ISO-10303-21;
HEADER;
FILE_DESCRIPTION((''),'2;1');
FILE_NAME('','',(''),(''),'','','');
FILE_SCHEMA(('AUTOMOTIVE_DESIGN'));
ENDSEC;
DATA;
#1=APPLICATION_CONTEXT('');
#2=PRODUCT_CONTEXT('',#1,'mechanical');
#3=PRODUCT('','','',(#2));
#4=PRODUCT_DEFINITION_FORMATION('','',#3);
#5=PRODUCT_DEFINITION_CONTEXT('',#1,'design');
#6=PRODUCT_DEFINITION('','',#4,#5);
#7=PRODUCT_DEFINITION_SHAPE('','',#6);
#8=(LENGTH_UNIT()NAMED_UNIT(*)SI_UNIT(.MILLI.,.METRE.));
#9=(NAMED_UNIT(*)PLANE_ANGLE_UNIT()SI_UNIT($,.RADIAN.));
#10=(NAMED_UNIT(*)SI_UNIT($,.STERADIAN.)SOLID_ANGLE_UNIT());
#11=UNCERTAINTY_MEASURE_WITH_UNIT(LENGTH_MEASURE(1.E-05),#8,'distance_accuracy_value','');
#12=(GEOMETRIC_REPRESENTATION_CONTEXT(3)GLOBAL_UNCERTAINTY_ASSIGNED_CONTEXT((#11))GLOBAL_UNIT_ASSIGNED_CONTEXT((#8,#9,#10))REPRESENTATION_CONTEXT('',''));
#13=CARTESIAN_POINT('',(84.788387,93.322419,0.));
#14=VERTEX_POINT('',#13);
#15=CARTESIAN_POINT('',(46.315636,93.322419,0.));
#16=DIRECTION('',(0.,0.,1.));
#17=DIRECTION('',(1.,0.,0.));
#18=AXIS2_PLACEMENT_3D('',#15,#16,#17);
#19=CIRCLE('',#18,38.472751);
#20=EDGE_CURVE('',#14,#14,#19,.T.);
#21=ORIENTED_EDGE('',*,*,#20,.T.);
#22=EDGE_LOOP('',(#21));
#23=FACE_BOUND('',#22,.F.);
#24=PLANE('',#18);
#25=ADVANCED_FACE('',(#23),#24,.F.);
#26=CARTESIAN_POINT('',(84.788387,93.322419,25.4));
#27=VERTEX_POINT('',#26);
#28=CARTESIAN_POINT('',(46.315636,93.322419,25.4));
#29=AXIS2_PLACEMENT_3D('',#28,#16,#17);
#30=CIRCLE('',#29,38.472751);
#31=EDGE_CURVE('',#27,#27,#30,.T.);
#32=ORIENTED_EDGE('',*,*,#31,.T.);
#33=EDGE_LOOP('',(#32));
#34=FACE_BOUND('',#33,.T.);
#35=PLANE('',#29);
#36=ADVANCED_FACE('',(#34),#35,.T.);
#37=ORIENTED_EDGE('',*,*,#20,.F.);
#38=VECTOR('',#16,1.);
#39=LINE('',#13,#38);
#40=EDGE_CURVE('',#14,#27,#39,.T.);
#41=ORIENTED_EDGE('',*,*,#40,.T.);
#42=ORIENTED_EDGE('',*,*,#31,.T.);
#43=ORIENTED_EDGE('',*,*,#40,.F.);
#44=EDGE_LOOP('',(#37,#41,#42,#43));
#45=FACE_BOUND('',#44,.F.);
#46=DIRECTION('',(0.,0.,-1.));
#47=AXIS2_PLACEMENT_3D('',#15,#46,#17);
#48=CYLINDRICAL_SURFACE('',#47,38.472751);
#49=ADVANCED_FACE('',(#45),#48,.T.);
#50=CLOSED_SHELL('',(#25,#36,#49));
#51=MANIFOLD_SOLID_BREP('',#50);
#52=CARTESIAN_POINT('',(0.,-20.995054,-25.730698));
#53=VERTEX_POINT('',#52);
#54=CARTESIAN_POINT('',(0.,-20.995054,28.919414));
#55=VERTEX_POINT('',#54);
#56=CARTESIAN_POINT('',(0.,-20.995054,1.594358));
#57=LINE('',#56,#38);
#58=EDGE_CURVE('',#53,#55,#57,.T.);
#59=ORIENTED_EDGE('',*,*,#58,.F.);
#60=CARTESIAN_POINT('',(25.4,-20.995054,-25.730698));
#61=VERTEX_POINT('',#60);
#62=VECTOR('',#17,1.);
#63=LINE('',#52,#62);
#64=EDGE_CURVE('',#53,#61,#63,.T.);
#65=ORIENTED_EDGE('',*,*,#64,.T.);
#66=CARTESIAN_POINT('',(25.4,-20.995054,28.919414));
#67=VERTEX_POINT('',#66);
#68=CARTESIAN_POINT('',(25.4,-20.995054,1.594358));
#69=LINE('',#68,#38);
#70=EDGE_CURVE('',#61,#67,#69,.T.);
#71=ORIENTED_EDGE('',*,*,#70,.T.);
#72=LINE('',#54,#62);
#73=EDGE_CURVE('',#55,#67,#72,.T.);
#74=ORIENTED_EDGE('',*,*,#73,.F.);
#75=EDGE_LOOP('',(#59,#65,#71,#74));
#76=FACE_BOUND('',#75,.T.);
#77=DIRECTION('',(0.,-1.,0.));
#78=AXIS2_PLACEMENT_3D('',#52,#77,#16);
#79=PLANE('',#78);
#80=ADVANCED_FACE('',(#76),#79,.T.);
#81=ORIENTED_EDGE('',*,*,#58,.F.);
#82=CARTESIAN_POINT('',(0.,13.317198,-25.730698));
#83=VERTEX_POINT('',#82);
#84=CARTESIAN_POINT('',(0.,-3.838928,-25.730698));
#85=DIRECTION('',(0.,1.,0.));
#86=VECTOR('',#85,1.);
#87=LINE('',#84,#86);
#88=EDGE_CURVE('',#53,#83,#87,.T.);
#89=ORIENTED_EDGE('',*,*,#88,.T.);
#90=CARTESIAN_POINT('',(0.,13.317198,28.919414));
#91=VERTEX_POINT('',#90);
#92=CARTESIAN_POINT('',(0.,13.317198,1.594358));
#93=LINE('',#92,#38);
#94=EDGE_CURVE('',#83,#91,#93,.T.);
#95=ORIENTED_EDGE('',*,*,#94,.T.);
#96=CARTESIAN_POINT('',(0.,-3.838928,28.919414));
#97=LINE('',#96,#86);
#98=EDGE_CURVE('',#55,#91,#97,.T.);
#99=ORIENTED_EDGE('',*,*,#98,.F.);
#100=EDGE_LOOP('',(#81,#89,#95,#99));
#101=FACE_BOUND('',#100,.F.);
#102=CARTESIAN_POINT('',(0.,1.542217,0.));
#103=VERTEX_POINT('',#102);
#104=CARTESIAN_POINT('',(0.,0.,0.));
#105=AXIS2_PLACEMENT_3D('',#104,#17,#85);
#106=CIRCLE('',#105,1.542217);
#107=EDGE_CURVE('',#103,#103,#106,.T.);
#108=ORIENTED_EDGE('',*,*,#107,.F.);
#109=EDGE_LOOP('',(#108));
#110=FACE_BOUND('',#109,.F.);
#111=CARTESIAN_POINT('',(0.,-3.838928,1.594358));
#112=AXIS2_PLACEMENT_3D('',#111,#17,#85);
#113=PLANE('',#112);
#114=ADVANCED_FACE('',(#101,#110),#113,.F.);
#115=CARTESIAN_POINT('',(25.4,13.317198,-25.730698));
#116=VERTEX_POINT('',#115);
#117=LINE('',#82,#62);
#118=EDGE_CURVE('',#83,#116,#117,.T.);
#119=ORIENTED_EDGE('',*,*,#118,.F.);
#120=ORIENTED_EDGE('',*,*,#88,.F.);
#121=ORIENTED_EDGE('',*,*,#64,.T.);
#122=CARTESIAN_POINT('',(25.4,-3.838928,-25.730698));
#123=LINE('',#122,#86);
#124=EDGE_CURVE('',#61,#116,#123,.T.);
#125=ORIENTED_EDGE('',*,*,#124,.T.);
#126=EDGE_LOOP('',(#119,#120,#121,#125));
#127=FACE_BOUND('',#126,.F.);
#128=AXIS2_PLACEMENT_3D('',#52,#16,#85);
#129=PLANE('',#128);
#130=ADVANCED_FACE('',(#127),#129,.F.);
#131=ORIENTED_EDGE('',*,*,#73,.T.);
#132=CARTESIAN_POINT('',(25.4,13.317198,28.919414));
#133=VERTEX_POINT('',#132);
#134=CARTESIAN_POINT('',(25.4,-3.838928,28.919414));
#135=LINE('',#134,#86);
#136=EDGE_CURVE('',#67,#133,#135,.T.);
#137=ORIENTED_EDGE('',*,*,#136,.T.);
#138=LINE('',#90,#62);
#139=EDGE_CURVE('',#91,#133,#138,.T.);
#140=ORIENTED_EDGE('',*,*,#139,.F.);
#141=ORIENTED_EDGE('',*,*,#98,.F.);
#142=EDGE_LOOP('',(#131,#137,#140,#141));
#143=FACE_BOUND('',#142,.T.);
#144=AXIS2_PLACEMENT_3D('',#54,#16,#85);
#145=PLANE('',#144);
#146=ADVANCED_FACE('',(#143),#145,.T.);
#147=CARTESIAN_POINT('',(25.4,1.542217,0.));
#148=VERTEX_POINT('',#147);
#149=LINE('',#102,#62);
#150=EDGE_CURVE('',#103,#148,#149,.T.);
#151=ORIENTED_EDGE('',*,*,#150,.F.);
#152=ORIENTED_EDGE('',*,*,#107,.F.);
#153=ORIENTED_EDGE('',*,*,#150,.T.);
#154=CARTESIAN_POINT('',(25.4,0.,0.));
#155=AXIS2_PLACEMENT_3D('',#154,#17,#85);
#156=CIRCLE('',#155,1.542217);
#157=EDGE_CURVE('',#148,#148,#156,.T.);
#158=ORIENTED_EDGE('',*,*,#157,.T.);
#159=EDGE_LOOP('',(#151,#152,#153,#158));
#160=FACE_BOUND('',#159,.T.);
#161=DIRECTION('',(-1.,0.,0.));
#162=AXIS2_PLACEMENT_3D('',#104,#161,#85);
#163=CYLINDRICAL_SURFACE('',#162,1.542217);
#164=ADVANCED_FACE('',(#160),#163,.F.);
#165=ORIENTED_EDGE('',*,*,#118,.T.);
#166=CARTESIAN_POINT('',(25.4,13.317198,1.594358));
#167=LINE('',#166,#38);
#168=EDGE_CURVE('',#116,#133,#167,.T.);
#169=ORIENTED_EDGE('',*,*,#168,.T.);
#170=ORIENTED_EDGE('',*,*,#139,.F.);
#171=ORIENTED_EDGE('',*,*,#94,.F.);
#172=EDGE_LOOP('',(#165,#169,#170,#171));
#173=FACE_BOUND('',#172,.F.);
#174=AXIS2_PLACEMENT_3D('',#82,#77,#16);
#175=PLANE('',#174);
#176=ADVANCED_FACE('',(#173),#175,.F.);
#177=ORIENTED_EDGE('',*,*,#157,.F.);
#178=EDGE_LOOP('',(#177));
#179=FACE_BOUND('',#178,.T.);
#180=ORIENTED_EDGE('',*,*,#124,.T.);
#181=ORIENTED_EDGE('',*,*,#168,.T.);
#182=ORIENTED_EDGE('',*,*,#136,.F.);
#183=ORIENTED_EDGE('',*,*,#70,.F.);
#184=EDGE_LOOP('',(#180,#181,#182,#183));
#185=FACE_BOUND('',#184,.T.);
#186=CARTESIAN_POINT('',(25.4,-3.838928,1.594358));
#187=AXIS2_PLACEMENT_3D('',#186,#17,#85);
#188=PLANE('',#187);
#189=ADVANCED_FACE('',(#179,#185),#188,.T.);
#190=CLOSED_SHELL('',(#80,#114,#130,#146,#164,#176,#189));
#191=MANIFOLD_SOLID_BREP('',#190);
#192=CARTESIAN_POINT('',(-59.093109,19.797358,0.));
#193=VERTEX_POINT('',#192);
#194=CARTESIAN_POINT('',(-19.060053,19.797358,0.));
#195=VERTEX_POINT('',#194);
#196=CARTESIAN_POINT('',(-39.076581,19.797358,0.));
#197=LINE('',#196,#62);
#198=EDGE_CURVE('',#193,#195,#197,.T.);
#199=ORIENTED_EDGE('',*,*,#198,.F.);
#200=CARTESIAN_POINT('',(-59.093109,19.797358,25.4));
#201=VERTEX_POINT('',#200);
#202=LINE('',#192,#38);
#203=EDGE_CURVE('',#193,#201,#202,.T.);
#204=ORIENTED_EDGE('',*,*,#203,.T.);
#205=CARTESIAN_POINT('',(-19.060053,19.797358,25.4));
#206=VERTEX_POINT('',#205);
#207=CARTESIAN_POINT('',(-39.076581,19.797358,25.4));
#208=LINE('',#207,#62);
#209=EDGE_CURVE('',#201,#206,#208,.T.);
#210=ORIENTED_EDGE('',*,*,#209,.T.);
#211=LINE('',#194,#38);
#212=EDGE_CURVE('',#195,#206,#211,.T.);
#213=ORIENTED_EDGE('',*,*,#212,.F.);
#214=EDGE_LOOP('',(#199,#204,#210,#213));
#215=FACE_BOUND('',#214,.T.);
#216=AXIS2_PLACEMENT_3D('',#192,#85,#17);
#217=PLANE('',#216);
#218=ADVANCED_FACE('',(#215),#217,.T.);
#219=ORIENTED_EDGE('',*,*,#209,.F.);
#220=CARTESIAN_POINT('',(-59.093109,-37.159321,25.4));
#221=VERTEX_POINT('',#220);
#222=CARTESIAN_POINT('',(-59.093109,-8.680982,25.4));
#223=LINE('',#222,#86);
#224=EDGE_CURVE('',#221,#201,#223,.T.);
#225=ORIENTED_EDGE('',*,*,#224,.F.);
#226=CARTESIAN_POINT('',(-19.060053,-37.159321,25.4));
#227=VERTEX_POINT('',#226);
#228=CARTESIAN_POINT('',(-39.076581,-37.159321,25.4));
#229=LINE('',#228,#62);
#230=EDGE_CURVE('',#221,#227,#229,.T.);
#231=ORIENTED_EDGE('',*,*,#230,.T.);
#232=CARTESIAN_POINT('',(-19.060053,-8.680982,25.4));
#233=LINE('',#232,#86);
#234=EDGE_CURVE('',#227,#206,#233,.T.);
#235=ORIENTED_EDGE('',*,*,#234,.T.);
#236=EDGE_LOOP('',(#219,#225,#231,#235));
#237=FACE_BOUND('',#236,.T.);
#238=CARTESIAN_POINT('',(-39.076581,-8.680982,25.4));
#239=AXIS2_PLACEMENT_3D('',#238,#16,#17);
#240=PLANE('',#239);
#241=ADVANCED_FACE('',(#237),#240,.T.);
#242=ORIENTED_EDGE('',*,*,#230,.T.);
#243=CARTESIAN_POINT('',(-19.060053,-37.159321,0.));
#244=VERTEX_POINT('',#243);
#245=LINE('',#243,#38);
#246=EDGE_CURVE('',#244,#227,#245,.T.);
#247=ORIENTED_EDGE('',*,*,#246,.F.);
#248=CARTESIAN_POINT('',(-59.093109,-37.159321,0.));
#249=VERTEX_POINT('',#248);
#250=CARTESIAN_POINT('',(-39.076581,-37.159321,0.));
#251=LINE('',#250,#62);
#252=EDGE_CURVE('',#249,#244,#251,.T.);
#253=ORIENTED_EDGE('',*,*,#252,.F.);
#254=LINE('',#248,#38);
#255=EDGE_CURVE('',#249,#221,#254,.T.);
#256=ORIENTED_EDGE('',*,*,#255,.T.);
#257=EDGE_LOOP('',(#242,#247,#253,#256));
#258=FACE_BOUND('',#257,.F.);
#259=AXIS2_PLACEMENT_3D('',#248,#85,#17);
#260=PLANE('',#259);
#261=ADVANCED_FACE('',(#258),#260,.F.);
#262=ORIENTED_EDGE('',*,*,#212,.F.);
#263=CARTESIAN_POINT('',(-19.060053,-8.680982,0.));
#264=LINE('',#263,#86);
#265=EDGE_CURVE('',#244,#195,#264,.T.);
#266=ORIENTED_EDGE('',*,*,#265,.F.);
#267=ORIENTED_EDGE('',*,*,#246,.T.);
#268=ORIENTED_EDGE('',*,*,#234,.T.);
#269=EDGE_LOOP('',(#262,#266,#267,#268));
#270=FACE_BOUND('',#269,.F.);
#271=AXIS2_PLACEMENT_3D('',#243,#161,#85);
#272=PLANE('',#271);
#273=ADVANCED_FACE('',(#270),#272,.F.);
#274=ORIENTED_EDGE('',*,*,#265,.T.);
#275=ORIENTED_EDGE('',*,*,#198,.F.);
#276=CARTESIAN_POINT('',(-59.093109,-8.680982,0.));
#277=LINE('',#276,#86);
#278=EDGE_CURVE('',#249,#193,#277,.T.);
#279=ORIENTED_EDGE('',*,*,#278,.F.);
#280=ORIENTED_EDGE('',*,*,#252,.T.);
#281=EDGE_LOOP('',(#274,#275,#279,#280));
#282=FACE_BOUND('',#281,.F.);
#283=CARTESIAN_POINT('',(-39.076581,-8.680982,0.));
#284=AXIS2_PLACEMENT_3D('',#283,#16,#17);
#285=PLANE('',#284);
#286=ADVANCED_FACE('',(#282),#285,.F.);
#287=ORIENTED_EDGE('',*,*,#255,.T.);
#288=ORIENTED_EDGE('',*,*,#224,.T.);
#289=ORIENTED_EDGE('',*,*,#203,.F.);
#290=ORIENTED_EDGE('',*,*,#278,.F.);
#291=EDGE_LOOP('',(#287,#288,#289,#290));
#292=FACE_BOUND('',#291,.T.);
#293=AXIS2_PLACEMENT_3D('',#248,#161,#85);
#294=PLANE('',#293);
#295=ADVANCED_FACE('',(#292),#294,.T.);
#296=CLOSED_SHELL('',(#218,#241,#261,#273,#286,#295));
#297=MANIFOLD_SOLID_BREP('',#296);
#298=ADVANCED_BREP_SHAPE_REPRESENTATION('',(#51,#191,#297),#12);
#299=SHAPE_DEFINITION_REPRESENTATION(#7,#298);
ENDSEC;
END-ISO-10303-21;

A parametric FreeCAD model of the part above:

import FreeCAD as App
import Part
import Sketcher

V = App.Vector
Q = App.Units.Quantity

doc = App.newDocument("Part")
params = doc.addObject("Spreadsheet::Sheet", "Params")
for row, (alias, value) in enumerate([
    ("pad1_length", "1 in"),
    ("pad2_length", "1 in"),
    ("pad3_length", "1 in"),
], start=1):
    params.set(f"A{row}", alias)
    params.set(f"B{row}", "=" + value)
    params.setAlias(f"B{row}", alias)

body = doc.addObject("PartDesign::Body", "Body")

sketch1 = body.newObject("Sketcher::SketchObject", "Sketch")
sketch1.AttachmentSupport = (doc.getObject("YZ_Plane"), [""])
sketch1.MapMode = "FlatFace"
sketch1.addGeometry(Part.LineSegment(V(-21, 28.9, 0), V(-21, -25.7, 0)), False)
sketch1.addGeometry(Part.LineSegment(V(-21, -25.7, 0), V(13.3, -25.7, 0)), False)
sketch1.addGeometry(Part.LineSegment(V(13.3, -25.7, 0), V(13.3, 28.9, 0)), False)
sketch1.addGeometry(Part.LineSegment(V(13.3, 28.9, 0), V(-21, 28.9, 0)), False)
sketch1.addGeometry(Part.Circle(V(0, 0, 0), V(0, 0, 1), 1.5), False)
sketch1.addConstraint(Sketcher.Constraint("Coincident", 0, 2, 1, 1))
sketch1.addConstraint(Sketcher.Constraint("Coincident", 1, 2, 2, 1))
sketch1.addConstraint(Sketcher.Constraint("Coincident", 2, 2, 3, 1))
sketch1.addConstraint(Sketcher.Constraint("Coincident", 3, 2, 0, 1))
sketch1.addConstraint(Sketcher.Constraint("Vertical", 0))
sketch1.addConstraint(Sketcher.Constraint("Horizontal", 1))
sketch1.addConstraint(Sketcher.Constraint("Vertical", 2))
sketch1.addConstraint(Sketcher.Constraint("Horizontal", 3))
sketch1.addConstraint(Sketcher.Constraint("Coincident", 4, 3, -1, 1))
sketch1.addConstraint(Sketcher.Constraint("Diameter", 4, Q("3.084434 mm")))
sketch1.addConstraint(Sketcher.Constraint("DistanceY", 0, 2, -1, 1, Q("25.730698 mm")))
sketch1.addConstraint(Sketcher.Constraint("DistanceX", 1, 1, 1, 2, Q("34.312252 mm")))
sketch1.addConstraint(Sketcher.Constraint("DistanceY", 0, 2, 0, 1, Q("54.650113 mm")))
sketch1.addConstraint(Sketcher.Constraint("DistanceX", 0, 2, -1, 1, Q("20.995054 mm")))
pad1 = body.newObject("PartDesign::Pad", "Pad")
pad1.Profile = sketch1
pad1.setExpression("Length", "Params.pad1_length")
body2 = doc.addObject("PartDesign::Body", "Body001")

sketch2 = body2.newObject("Sketcher::SketchObject", "Sketch001")
sketch2.AttachmentSupport = (doc.getObject("XY_Plane001"), [""])
sketch2.MapMode = "FlatFace"
sketch2.addGeometry(Part.LineSegment(V(-59, 20, 0), V(-59, -37, 0)), False)
sketch2.addGeometry(Part.LineSegment(V(-59, -37, 0), V(-19, -37, 0)), False)
sketch2.addGeometry(Part.LineSegment(V(-19, -37, 0), V(-19, 20, 0)), False)
sketch2.addGeometry(Part.LineSegment(V(-19, 20, 0), V(-59, 20, 0)), False)
sketch2.addConstraint(Sketcher.Constraint("Coincident", 0, 2, 1, 1))
sketch2.addConstraint(Sketcher.Constraint("Coincident", 1, 2, 2, 1))
sketch2.addConstraint(Sketcher.Constraint("Coincident", 2, 2, 3, 1))
sketch2.addConstraint(Sketcher.Constraint("Coincident", 3, 2, 0, 1))
sketch2.addConstraint(Sketcher.Constraint("Vertical", 0))
sketch2.addConstraint(Sketcher.Constraint("Horizontal", 1))
sketch2.addConstraint(Sketcher.Constraint("Vertical", 2))
sketch2.addConstraint(Sketcher.Constraint("Horizontal", 3))
sketch2.addConstraint(Sketcher.Constraint("DistanceY", 0, 2, 0, 1, Q("56.956679 mm")))
sketch2.addConstraint(Sketcher.Constraint("DistanceX", 1, 1, 1, 2, Q("40.033057 mm")))
sketch2.addConstraint(Sketcher.Constraint("DistanceX", 0, 2, -1, 1, Q("59.093109 mm")))
sketch2.addConstraint(Sketcher.Constraint("DistanceY", 0, 2, -1, 1, Q("37.159321 mm")))
pad2 = body2.newObject("PartDesign::Pad", "Pad001")
pad2.Profile = sketch2
pad2.setExpression("Length", "Params.pad2_length")
body3 = doc.addObject("PartDesign::Body", "Body002")

sketch3 = body3.newObject("Sketcher::SketchObject", "Sketch002")
sketch3.AttachmentSupport = (doc.getObject("XY_Plane002"), [""])
sketch3.MapMode = "FlatFace"
sketch3.addGeometry(Part.Circle(V(46, 93, 0), V(0, 0, 1), 38), False)
sketch3.addConstraint(Sketcher.Constraint("Diameter", 0, Q("76.945502 mm")))
sketch3.addConstraint(Sketcher.Constraint("DistanceY", -1, 1, 0, 3, Q("93.322419 mm")))
sketch3.addConstraint(Sketcher.Constraint("DistanceX", -1, 1, 0, 3, Q("46.315636 mm")))
pad3 = body3.newObject("PartDesign::Pad", "Pad002")
pad3.Profile = sketch3
pad3.setExpression("Length", "Params.pad3_length")

doc.recompute()
